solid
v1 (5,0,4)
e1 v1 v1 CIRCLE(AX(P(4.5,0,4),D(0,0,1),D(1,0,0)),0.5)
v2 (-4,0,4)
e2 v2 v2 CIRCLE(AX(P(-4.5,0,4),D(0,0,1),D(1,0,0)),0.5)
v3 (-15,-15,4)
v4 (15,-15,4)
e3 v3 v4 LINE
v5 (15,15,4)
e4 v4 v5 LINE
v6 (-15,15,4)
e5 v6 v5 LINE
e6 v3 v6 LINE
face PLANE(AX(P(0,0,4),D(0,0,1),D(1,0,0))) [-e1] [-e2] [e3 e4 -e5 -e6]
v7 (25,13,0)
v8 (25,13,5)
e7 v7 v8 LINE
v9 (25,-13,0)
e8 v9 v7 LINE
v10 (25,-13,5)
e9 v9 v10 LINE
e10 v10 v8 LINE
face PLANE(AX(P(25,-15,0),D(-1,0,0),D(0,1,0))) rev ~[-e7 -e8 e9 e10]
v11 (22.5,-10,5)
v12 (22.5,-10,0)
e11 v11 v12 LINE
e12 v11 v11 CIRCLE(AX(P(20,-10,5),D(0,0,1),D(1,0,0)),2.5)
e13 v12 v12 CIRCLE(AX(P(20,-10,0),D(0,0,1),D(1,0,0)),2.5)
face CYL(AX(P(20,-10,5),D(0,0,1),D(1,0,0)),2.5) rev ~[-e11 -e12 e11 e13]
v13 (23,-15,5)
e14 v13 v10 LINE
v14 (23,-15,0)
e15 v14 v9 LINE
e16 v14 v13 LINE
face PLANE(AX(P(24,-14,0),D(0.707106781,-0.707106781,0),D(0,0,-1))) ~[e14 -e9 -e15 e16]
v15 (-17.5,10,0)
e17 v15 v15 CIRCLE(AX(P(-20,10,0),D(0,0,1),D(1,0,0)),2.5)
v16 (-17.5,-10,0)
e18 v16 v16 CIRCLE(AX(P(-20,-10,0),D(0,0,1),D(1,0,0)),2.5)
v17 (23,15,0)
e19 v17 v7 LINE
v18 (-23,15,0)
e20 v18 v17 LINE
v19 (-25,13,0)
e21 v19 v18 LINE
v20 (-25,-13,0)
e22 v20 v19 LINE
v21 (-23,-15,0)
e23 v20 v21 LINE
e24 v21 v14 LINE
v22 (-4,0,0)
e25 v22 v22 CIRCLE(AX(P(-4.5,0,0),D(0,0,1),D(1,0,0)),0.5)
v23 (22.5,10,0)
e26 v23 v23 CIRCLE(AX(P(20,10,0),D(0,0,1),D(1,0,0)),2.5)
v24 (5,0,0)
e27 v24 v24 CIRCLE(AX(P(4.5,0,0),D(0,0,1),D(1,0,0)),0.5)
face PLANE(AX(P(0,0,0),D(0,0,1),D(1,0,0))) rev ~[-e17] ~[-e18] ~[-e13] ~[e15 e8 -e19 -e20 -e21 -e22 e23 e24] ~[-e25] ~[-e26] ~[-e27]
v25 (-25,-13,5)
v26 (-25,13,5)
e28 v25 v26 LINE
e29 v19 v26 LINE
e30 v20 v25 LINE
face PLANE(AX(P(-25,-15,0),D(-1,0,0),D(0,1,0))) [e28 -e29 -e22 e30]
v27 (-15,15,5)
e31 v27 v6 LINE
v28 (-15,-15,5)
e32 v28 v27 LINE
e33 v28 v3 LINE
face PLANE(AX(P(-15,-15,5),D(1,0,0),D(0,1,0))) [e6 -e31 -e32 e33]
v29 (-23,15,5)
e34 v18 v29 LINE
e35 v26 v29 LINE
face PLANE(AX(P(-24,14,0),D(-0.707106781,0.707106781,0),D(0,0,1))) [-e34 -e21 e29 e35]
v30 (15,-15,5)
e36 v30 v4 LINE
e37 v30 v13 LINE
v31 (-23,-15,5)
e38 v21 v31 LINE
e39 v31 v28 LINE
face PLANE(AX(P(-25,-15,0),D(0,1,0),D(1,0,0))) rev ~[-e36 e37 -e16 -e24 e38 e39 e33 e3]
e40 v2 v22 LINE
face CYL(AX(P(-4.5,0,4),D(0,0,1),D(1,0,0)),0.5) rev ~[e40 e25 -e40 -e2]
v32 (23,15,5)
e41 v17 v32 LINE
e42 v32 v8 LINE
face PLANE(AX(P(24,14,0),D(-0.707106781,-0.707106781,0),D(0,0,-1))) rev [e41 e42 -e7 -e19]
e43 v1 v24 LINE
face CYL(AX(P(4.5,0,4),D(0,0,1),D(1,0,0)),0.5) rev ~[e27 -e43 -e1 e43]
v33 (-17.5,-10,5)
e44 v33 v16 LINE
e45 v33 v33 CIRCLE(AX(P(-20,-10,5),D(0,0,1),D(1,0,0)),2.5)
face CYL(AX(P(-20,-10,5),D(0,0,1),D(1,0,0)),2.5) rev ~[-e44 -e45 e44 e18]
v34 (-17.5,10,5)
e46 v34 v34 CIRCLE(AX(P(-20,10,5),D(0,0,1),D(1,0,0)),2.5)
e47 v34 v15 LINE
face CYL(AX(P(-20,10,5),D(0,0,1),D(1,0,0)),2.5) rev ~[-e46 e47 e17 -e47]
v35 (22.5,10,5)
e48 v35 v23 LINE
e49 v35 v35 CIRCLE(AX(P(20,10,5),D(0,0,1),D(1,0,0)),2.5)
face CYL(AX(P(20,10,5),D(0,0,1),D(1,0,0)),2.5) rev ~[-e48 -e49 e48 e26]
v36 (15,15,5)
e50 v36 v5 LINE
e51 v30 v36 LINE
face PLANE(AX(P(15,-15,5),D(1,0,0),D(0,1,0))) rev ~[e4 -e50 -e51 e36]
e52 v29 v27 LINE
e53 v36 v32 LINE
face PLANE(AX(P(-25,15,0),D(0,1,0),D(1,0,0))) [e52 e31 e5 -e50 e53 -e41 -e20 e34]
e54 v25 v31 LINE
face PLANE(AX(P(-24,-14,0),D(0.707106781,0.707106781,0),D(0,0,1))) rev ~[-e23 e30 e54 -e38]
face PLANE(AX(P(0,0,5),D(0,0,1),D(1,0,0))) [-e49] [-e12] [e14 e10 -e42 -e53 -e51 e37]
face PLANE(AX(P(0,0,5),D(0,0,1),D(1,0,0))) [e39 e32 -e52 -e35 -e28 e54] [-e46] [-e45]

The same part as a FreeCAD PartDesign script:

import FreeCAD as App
import Part
import Sketcher

V = App.Vector


def edges_at(feature, points):
    """Names of the edges that pass closest to the given points."""
    edges = feature.Shape.Edges
    near = lambda p: min(range(len(edges)), key=lambda i: edges[i].distToShape(Part.Vertex(*p))[0])
    return sorted({f"Edge{near(p) + 1}" for p in points})

doc = App.newDocument("Part")
body = doc.addObject("PartDesign::Body", "Body")

# Sketch on XY plane
sketch1 = body.newObject("Sketcher::SketchObject", "Sketch")
sketch1.AttachmentSupport = (doc.getObject("XY_Plane"), [""])
sketch1.MapMode = "FlatFace"
sketch1.addGeometry([
    Part.LineSegment(V(-25, 15, 0), V(-25, -15, 0)),
    Part.LineSegment(V(-25, -15, 0), V(25, -15, 0)),
    Part.LineSegment(V(25, -15, 0), V(25, 15, 0)),
    Part.LineSegment(V(25, 15, 0), V(-25, 15, 0)),
], False)
sketch1.addConstraint([
    Sketcher.Constraint("Coincident", 0, 2, 1, 1),
    Sketcher.Constraint("Coincident", 1, 2, 2, 1),
    Sketcher.Constraint("Coincident", 2, 2, 3, 1),
    Sketcher.Constraint("Coincident", 3, 2, 0, 1),
    Sketcher.Constraint("Vertical", 0),
    Sketcher.Constraint("Horizontal", 1),
    Sketcher.Constraint("Vertical", 2),
    Sketcher.Constraint("Horizontal", 3),
    Sketcher.Constraint("Symmetric", 0, 2, 2, 2, -1, 1),
    Sketcher.Constraint("DistanceX", 1, 1, 1, 2, 50.0),
    Sketcher.Constraint("DistanceY", 0, 2, 0, 1, 30.0),
])
pad1 = body.newObject("PartDesign::Pad", "Pad")
pad1.Profile = sketch1
pad1.Length = 5

# Sketch on XY plane
sketch2 = body.newObject("Sketcher::SketchObject", "Sketch001")
sketch2.AttachmentSupport = (doc.getObject("XY_Plane"), [""])
sketch2.MapMode = "FlatFace"
sketch2.AttachmentOffset = App.Placement(V(0, 0, 5), App.Rotation())
sketch2.addGeometry([
    Part.LineSegment(V(-15, 15, 0), V(-15, -15, 0)),
    Part.LineSegment(V(-15, -15, 0), V(15, -15, 0)),
    Part.LineSegment(V(15, -15, 0), V(15, 15, 0)),
    Part.LineSegment(V(15, 15, 0), V(-15, 15, 0)),
], False)
sketch2.addConstraint([
    Sketcher.Constraint("Coincident", 0, 2, 1, 1),
    Sketcher.Constraint("Coincident", 1, 2, 2, 1),
    Sketcher.Constraint("Coincident", 2, 2, 3, 1),
    Sketcher.Constraint("Coincident", 3, 2, 0, 1),
    Sketcher.Constraint("Vertical", 0),
    Sketcher.Constraint("Horizontal", 1),
    Sketcher.Constraint("Vertical", 2),
    Sketcher.Constraint("Horizontal", 3),
    Sketcher.Constraint("Symmetric", 0, 2, 2, 2, -1, 1),
    Sketcher.Constraint("Equal", 3, 0),
    Sketcher.Constraint("DistanceX", 1, 1, 1, 2, 30.0),
])
pocket1 = body.newObject("PartDesign::Pocket", "Pocket")
pocket1.Profile = sketch2
pocket1.Length = 1
doc.recompute()

chamfer = body.newObject("PartDesign::Chamfer", "Chamfer")
chamfer.Base = (pocket1, edges_at(pocket1, [
    (-25, 15, 2.5),
    (-25, -15, 2.5),
    (25, -15, 2.5),
    (25, 15, 2.5),
]))
chamfer.Size = 2

# Sketch on XY plane
sketch3 = body.newObject("Sketcher::SketchObject", "Sketch002")
sketch3.AttachmentSupport = (doc.getObject("XY_Plane"), [""])
sketch3.MapMode = "FlatFace"
sketch3.AttachmentOffset = App.Placement(V(0, 0, 5), App.Rotation())
sketch3.addGeometry([
    Part.Circle(V(-20, 10, 0), V(0, 0, 1), 2.5),
    Part.Circle(V(-20, -10, 0), V(0, 0, 1), 2.5),
    Part.Circle(V(20, -10, 0), V(0, 0, 1), 2.5),
    Part.Circle(V(20, 10, 0), V(0, 0, 1), 2.5),
], False)
sketch3.addConstraint([
    Sketcher.Constraint("Equal", 0, 1),
    Sketcher.Constraint("Equal", 1, 2),
    Sketcher.Constraint("Equal", 2, 3),
    Sketcher.Constraint("Symmetric", 0, 3, 2, 3, -1, 1),
    Sketcher.Constraint("Symmetric", 1, 3, 3, 3, -1, 1),
    Sketcher.Constraint("Symmetric", 1, 3, 2, 3, -2),
    Sketcher.Constraint("Diameter", 0, 5.0),
    Sketcher.Constraint("DistanceX", 0, 3, -1, 1, 20.0),
    Sketcher.Constraint("DistanceY", -1, 1, 0, 3, 10.0),
])
pocket2 = body.newObject("PartDesign::Pocket", "Pocket001")
pocket2.Profile = sketch3
pocket2.Length = 25

# Sketch on XY plane
sketch4 = body.newObject("Sketcher::SketchObject", "Sketch003")
sketch4.AttachmentSupport = (doc.getObject("XY_Plane"), [""])
sketch4.MapMode = "FlatFace"
sketch4.AttachmentOffset = App.Placement(V(0, 0, 4), App.Rotation())
sketch4.addGeometry([
    Part.Circle(V(-4.5, 0, 0), V(0, 0, 1), 0.5),
    Part.Circle(V(4.5, 0, 0), V(0, 0, 1), 0.5),
], False)
sketch4.addConstraint([
    Sketcher.Constraint("Equal", 0, 1),
    Sketcher.Constraint("Symmetric", 0, 3, 1, 3, -1, 1),
    Sketcher.Constraint("PointOnObject", 0, 3, -1),
    Sketcher.Constraint("Diameter", 0, 1.0),
    Sketcher.Constraint("DistanceX", 0, 3, 1, 3, 9.0),
])
pocket3 = body.newObject("PartDesign::Pocket", "Pocket002")
pocket3.Profile = sketch4
pocket3.Length = 25

doc.recompute()
